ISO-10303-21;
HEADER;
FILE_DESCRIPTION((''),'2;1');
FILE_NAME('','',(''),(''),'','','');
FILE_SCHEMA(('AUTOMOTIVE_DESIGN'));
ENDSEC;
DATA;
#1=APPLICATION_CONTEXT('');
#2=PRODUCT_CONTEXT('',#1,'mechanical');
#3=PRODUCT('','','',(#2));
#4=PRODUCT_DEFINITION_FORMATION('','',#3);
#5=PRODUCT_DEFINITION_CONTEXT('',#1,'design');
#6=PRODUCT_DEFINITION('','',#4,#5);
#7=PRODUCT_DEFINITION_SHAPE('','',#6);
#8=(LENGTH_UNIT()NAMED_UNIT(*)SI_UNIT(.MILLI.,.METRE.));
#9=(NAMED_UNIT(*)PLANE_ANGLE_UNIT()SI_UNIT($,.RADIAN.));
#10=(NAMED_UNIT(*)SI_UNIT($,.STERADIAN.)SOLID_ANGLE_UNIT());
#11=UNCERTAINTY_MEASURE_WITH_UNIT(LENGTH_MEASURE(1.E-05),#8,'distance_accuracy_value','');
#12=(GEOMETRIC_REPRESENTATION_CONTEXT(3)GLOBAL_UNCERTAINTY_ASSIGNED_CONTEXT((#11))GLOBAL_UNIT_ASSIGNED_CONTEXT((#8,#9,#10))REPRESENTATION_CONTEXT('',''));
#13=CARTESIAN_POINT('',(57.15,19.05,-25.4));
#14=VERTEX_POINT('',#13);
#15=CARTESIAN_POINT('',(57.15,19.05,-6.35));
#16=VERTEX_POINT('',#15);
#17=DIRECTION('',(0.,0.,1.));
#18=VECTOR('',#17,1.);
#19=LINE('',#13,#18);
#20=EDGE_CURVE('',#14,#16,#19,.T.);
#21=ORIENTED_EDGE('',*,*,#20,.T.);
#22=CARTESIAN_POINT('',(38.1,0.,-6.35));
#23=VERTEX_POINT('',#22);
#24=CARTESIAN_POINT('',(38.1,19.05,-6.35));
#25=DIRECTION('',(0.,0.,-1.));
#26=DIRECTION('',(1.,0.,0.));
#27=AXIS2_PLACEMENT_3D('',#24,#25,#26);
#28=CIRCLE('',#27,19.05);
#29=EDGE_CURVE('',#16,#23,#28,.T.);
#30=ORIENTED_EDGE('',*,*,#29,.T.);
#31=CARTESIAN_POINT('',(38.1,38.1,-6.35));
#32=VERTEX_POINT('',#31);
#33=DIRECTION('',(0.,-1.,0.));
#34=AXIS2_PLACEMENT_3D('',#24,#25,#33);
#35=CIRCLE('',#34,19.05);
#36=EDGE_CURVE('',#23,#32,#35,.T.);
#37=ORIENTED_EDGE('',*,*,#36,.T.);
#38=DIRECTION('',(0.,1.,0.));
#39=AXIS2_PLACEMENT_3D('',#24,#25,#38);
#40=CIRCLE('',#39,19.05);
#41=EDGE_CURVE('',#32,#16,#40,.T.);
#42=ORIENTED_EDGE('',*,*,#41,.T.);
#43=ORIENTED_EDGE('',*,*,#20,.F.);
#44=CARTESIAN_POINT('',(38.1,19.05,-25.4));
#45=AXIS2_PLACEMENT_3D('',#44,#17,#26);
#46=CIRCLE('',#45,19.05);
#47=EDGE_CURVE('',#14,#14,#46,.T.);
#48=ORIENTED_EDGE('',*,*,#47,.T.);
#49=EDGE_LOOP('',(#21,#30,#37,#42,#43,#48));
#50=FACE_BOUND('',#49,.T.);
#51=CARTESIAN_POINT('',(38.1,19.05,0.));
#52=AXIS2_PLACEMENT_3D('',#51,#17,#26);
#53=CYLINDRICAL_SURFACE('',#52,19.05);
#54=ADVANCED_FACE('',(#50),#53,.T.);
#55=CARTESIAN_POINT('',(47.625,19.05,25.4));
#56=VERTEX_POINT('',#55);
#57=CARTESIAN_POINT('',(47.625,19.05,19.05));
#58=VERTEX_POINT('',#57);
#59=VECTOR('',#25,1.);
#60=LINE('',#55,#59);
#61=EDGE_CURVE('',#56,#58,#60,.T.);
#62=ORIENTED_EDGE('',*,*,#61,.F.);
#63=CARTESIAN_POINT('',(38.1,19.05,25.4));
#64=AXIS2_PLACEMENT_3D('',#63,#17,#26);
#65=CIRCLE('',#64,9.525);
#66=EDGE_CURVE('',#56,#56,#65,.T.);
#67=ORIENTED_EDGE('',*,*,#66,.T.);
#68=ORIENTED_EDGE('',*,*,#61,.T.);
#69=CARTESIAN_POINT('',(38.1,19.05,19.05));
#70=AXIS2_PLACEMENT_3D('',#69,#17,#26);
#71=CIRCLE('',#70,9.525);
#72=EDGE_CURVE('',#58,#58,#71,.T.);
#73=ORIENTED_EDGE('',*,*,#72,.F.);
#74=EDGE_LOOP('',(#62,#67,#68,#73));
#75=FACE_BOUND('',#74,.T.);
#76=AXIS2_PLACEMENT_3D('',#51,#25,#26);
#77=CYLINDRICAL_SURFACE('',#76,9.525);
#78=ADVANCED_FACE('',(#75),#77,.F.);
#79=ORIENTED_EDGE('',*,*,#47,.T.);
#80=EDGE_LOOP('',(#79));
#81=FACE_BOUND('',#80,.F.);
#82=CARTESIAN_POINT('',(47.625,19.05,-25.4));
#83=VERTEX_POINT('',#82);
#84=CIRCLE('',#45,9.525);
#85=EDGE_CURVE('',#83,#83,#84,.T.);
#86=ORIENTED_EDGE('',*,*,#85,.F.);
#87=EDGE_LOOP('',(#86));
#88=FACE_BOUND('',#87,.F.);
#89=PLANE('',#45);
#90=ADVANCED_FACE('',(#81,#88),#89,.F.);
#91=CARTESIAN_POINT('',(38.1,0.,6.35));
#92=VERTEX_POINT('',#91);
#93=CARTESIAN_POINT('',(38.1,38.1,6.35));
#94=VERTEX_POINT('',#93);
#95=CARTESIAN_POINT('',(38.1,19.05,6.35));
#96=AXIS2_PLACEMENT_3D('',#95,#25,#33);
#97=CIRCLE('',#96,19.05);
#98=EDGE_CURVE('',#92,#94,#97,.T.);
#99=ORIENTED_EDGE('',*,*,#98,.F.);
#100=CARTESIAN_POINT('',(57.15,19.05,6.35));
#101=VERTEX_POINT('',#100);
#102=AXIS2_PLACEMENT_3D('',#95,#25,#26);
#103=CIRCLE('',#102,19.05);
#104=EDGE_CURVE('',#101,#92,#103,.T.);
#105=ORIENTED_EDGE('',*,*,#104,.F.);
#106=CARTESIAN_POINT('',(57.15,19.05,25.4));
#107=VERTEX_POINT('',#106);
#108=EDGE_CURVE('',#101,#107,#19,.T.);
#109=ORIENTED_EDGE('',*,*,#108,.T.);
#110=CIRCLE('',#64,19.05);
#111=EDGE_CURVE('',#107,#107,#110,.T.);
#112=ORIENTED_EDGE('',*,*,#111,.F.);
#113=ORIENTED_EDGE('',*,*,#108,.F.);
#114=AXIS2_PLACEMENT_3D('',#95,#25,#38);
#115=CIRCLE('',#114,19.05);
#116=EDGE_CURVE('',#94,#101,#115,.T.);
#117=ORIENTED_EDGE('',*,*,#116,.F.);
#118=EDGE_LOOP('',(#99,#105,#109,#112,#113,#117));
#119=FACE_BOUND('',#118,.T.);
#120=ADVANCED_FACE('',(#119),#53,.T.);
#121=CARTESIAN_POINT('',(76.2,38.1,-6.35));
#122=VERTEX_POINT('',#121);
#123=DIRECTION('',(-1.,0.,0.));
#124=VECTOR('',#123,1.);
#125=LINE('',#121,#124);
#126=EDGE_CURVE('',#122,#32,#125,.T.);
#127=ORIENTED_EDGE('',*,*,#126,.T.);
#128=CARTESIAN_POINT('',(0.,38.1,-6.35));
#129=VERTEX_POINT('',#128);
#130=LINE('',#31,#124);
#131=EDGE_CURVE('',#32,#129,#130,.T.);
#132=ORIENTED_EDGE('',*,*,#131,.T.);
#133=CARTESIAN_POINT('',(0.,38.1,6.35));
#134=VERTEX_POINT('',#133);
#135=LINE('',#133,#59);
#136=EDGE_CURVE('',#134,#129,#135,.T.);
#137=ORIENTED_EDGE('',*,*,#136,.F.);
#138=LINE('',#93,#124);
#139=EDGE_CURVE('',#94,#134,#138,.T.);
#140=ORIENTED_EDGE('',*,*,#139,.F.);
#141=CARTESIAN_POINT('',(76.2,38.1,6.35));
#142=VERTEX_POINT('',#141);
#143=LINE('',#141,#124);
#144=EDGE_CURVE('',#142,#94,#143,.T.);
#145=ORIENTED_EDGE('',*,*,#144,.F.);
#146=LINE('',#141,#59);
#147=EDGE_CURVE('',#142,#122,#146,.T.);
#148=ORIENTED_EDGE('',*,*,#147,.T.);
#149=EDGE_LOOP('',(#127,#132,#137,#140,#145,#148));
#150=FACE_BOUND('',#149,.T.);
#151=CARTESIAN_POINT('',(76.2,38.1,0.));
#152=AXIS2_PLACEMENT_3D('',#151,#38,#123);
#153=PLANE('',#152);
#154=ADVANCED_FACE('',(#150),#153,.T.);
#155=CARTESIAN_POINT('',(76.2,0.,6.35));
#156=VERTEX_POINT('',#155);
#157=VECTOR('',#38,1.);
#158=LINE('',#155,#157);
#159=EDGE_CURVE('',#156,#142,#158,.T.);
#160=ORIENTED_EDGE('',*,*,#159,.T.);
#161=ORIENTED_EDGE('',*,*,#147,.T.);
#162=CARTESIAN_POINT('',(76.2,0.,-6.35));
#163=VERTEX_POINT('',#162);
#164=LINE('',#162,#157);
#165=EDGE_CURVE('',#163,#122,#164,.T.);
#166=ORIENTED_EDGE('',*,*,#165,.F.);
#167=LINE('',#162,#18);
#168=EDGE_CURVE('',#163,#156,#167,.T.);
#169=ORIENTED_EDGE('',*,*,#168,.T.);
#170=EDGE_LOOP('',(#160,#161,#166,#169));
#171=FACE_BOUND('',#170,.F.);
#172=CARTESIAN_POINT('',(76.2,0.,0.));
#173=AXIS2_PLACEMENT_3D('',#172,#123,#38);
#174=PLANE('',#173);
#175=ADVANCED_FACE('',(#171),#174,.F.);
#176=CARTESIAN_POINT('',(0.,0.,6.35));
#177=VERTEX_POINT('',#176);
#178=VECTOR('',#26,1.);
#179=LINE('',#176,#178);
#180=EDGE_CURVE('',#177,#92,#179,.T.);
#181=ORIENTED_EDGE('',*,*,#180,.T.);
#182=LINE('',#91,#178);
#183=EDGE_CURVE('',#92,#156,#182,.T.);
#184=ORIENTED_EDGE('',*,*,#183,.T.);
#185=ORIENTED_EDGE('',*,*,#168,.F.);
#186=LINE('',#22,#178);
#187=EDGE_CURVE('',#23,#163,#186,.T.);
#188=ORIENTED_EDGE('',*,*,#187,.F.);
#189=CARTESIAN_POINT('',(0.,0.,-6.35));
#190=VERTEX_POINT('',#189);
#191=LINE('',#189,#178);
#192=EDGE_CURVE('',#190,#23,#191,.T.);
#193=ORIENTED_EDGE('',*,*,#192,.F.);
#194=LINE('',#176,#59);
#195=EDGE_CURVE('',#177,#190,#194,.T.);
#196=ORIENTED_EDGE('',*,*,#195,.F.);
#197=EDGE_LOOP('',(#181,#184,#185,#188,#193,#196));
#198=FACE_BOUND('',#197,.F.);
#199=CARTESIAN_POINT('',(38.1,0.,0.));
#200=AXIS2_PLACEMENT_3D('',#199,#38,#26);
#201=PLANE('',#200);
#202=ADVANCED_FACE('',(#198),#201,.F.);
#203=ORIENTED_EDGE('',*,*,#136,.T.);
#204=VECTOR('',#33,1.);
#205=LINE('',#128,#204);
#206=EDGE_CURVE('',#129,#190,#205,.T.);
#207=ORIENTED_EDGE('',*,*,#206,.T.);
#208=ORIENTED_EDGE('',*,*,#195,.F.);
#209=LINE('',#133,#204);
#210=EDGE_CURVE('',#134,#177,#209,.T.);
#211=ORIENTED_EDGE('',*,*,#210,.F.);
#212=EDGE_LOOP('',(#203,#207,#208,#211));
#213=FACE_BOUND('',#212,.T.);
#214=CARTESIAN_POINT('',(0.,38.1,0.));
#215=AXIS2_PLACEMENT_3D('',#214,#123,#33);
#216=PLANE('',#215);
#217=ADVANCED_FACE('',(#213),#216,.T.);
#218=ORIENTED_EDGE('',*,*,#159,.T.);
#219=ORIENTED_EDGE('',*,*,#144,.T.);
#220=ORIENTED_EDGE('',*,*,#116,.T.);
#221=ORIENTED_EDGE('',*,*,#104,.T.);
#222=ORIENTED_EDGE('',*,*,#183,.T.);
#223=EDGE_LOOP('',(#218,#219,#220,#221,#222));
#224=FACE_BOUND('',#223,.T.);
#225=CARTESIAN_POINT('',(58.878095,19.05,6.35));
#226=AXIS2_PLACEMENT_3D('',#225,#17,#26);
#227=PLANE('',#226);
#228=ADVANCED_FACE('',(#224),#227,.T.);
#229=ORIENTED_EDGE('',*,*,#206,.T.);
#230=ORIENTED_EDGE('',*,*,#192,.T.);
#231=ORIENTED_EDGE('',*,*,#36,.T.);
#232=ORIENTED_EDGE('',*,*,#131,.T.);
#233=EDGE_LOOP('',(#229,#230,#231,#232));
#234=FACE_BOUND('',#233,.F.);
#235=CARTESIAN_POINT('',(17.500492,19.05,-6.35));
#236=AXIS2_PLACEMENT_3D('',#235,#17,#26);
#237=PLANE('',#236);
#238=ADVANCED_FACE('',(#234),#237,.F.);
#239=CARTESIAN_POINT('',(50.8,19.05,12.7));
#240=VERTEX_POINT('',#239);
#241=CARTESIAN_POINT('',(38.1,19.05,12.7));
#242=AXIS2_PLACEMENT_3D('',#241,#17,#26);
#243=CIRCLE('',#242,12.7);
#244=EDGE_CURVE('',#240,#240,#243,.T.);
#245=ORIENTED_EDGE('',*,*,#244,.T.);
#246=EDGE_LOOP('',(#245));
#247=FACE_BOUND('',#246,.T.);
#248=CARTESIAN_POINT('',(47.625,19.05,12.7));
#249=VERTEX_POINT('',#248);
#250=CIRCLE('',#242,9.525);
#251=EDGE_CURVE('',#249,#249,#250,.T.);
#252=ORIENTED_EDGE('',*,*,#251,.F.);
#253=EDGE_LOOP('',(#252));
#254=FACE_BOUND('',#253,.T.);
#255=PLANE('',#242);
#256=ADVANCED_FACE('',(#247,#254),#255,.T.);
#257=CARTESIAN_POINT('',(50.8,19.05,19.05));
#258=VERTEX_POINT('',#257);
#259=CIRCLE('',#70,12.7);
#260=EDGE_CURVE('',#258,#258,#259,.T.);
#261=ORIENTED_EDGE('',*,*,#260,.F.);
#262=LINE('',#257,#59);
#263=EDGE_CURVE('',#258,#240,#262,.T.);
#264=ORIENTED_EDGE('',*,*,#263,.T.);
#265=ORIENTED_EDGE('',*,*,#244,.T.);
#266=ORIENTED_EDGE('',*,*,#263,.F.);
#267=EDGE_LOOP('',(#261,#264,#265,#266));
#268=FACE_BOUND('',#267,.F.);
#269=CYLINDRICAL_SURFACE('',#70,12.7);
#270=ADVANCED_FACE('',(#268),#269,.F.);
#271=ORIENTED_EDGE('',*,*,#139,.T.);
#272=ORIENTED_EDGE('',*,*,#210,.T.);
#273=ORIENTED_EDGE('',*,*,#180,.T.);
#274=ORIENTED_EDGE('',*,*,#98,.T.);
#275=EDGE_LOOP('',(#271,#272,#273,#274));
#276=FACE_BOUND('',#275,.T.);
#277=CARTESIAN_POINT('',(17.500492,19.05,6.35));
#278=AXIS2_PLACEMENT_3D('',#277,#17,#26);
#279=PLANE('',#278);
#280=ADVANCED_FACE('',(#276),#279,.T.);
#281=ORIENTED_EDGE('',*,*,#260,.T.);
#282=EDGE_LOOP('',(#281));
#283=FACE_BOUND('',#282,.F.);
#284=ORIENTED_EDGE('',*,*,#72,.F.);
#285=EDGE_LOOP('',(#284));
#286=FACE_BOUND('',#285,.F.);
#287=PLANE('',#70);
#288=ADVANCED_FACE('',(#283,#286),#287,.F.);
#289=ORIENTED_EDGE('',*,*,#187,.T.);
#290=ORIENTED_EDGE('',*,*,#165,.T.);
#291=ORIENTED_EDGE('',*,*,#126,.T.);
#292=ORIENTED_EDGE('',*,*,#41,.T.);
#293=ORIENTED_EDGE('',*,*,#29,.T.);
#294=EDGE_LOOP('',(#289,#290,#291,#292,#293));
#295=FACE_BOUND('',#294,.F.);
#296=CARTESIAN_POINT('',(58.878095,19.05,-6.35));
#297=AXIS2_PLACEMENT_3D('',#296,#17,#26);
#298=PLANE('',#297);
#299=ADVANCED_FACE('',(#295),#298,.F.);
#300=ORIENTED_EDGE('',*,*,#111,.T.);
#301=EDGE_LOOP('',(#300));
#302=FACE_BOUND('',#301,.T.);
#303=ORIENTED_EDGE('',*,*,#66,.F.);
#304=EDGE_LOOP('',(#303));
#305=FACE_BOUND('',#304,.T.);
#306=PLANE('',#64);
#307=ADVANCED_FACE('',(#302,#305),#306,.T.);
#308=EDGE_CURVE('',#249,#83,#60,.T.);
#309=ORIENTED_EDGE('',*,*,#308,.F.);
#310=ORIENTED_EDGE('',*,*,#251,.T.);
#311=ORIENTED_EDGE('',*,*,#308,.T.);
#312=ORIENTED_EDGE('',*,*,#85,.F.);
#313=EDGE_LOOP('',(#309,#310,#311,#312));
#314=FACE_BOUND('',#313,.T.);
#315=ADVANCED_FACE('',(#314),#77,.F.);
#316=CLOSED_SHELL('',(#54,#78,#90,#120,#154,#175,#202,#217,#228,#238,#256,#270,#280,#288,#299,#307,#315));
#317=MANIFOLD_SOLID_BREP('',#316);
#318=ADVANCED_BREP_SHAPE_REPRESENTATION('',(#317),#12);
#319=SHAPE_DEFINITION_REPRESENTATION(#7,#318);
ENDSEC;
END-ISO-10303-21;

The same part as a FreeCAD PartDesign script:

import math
import FreeCAD as App
import Part
import Sketcher

V = App.Vector
Q = App.Units.Quantity

doc = App.newDocument("Part")
body = doc.addObject("PartDesign::Body", "Body")

sketch1 = body.newObject("Sketcher::SketchObject", "Sketch")
sketch1.AttachmentSupport = (doc.getObject("XY_Plane"), [""])
sketch1.MapMode = "FlatFace"
sketch1.addGeometry([
    Part.Circle(V(38, 19, 0), V(0, 0, 1), 19),
    Part.Circle(V(38, 19, 0), V(0, 0, 1), 10),
], False)
sketch1.addConstraint([
    Sketcher.Constraint("Coincident", 1, 3, 0, 3),
    Sketcher.Constraint("Diameter", 0, Q("1.5 in")),
    Sketcher.Constraint("Diameter", 1, Q("0.75 in")),
    Sketcher.Constraint("DistanceX", -1, 1, 0, 3, Q("1.5 in")),
    Sketcher.Constraint("DistanceY", -1, 1, 0, 3, Q("0.75 in")),
])
pad1 = body.newObject("PartDesign::Pad", "Pad")
pad1.Profile = sketch1
pad1.Length = Q("2 in")
pad1.Midplane = True

sketch2 = body.newObject("Sketcher::SketchObject", "Sketch001")
sketch2.AttachmentSupport = (doc.getObject("XY_Plane"), [""])
sketch2.MapMode = "FlatFace"
sketch2.addGeometry([
    Part.LineSegment(V(0, 38, 0), V(0, 0, 0)),
    Part.LineSegment(V(0, 0, 0), V(38, 0, 0)),
    Part.ArcOfCircle(Part.Circle(V(38, 19, 0), V(0, 0, 1), 19), math.radians(90), math.radians(270)),
    Part.LineSegment(V(38, 38, 0), V(0, 38, 0)),
    Part.ArcOfCircle(Part.Circle(V(38, 19, 0), V(0, 0, 1), 19), math.radians(-90), math.radians(0)),
    Part.LineSegment(V(38, 0, 0), V(76, 0, 0)),
    Part.LineSegment(V(76, 0, 0), V(76, 38, 0)),
    Part.LineSegment(V(76, 38, 0), V(38, 38, 0)),
    Part.ArcOfCircle(Part.Circle(V(38, 19, 0), V(0, 0, 1), 19), math.radians(0), math.radians(90)),
], False)
sketch2.addConstraint([
    Sketcher.Constraint("Coincident", 0, 2, 1, 1),
    Sketcher.Constraint("Tangent", 1, 2, 2, 2),
    Sketcher.Constraint("Tangent", 2, 1, 3, 1),
    Sketcher.Constraint("Coincident", 3, 2, 0, 1),
    Sketcher.Constraint("Tangent", 4, 1, 5, 1),
    Sketcher.Constraint("Coincident", 5, 2, 6, 1),
    Sketcher.Constraint("Coincident", 6, 2, 7, 1),
    Sketcher.Constraint("Tangent", 7, 2, 8, 2),
    Sketcher.Constraint("Tangent", 8, 1, 4, 2),
    Sketcher.Constraint("Vertical", 0),
    Sketcher.Constraint("Horizontal", 1),
    Sketcher.Constraint("Horizontal", 3),
    Sketcher.Constraint("Horizontal", 5),
    Sketcher.Constraint("Vertical", 6),
    Sketcher.Constraint("Horizontal", 7),
    Sketcher.Constraint("Coincident", 0, 2, -1, 1),
    Sketcher.Constraint("Coincident", 4, 3, 2, 3),
    Sketcher.Constraint("Coincident", 7, 2, 2, 1),
    Sketcher.Constraint("Horizontal", 4, 3, 8, 1),
    Sketcher.Constraint("Equal", 3, 5),
    Sketcher.Constraint("Equal", 7, 0),
    Sketcher.Constraint("Radius", 2, Q("0.75 in")),
])
pad2 = body.newObject("PartDesign::Pad", "Pad001")
pad2.Profile = sketch2
pad2.Length = Q("0.5 in")
pad2.Midplane = True

sketch3 = body.newObject("Sketcher::SketchObject", "Sketch002")
sketch3.AttachmentSupport = (doc.getObject("XY_Plane"), [""])
sketch3.MapMode = "FlatFace"
sketch3.AttachmentOffset = App.Placement(V(0, 0, 0.75 * 25.4), App.Rotation())
sketch3.addGeometry([
    Part.Circle(V(38, 19, 0), V(0, 0, 1), 13),
    Part.Circle(V(38, 19, 0), V(0, 0, 1), 10),
], False)
sketch3.addConstraint([
    Sketcher.Constraint("Coincident", 1, 3, 0, 3),
    Sketcher.Constraint("Diameter", 0, Q("1 in")),
    Sketcher.Constraint("Diameter", 1, Q("0.75 in")),
    Sketcher.Constraint("DistanceX", -1, 1, 0, 3, Q("1.5 in")),
    Sketcher.Constraint("DistanceY", -1, 1, 0, 3, Q("0.75 in")),
])
pocket1 = body.newObject("PartDesign::Pocket", "Pocket")
pocket1.Profile = sketch3
pocket1.Length = Q("0.25 in")

doc.recompute()
